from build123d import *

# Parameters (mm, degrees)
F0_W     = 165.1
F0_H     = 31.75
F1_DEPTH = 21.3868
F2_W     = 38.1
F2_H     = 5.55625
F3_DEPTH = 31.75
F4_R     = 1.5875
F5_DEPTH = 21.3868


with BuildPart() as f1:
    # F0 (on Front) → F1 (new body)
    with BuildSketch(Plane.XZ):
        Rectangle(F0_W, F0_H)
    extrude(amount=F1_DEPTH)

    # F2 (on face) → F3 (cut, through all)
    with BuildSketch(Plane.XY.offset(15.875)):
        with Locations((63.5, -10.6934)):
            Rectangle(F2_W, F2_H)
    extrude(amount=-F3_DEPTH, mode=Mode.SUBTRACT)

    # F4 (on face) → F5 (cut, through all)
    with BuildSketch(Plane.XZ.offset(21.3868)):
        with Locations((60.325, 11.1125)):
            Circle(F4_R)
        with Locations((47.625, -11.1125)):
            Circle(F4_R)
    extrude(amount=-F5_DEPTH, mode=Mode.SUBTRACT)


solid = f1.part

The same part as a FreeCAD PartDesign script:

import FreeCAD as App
import Part
import Sketcher
Q = App.Units.Quantity


def add_polygon(sketch, points):
    """Adds a closed chain of lines whose ends are joined by coincident constraints."""
    first, n = sketch.GeometryCount, len(points)
    for a, b in zip(points, points[1:] + points[:1]):
        sketch.addGeometry(Part.LineSegment(App.Vector(*a, 0), App.Vector(*b, 0)), False)
    for i in range(n):
        sketch.addConstraint(Sketcher.Constraint("Coincident", first + i, 2, first + (i + 1) % n, 1))

doc = App.newDocument("Part")
body = doc.addObject("PartDesign::Body", "Body")

# Sketch on XZ plane
sketch1 = body.newObject("Sketcher::SketchObject", "Sketch")
sketch1.AttachmentSupport = (doc.getObject("XZ_Plane"), [""])
sketch1.MapMode = "FlatFace"
add_polygon(sketch1, [(-83, 16), (-83, -16), (83, -16), (83, 16)])  # lines 0-3
sketch1.addConstraint(Sketcher.Constraint("Vertical", 0))
sketch1.addConstraint(Sketcher.Constraint("Horizontal", 1))
sketch1.addConstraint(Sketcher.Constraint("Vertical", 2))
sketch1.addConstraint(Sketcher.Constraint("Horizontal", 3))
sketch1.addConstraint(Sketcher.Constraint("Symmetric", 0, 2, 2, 2, -1, 1))
sketch1.addConstraint(Sketcher.Constraint("DistanceX", 1, 1, 1, 2, Q("6.5 in")))
sketch1.addConstraint(Sketcher.Constraint("DistanceY", 0, 2, 0, 1, Q("1.25 in")))
pad1 = body.newObject("PartDesign::Pad", "Pad")
pad1.Profile = sketch1
pad1.Length = Q("0.842 in")

# Sketch on XY plane
sketch2 = body.newObject("Sketcher::SketchObject", "Sketch001")
sketch2.AttachmentSupport = (doc.getObject("XY_Plane"), [""])
sketch2.MapMode = "FlatFace"
sketch2.AttachmentOffset = App.Placement(App.Vector(0, 0, 0.625 * 25.4), App.Rotation())
add_polygon(sketch2, [(44, -8), (44, -13), (83, -13), (83, -8)])  # lines 0-3
sketch2.addConstraint(Sketcher.Constraint("Vertical", 0))
sketch2.addConstraint(Sketcher.Constraint("Horizontal", 1))
sketch2.addConstraint(Sketcher.Constraint("Vertical", 2))
sketch2.addConstraint(Sketcher.Constraint("Horizontal", 3))
sketch2.addConstraint(Sketcher.Constraint("DistanceX", 1, 1, 1, 2, Q("1.5 in")))
sketch2.addConstraint(Sketcher.Constraint("DistanceY", 0, 2, 0, 1, Q("0.21875 in")))
sketch2.addConstraint(Sketcher.Constraint("DistanceX", -1, 1, 0, 2, Q("1.75 in")))
sketch2.addConstraint(Sketcher.Constraint("DistanceY", 0, 2, -1, 1, Q("13.471525 mm")))
pocket1 = body.newObject("PartDesign::Pocket", "Pocket")
pocket1.Profile = sketch2
pocket1.Type = "ThroughAll"

# Sketch on XZ plane
sketch3 = body.newObject("Sketcher::SketchObject", "Sketch002")
sketch3.AttachmentSupport = (doc.getObject("XZ_Plane"), [""])
sketch3.MapMode = "FlatFace"
sketch3.AttachmentOffset = App.Placement(App.Vector(0, 0, 0.842 * 25.4), App.Rotation())
sketch3.addGeometry(Part.Circle(App.Vector(60.3, 11.1, 0), App.Vector(0, 0, 1), 1.6), False)
sketch3.addGeometry(Part.Circle(App.Vector(47.6, -11.1, 0), App.Vector(0, 0, 1), 1.6), False)
sketch3.addConstraint(Sketcher.Constraint("Equal", 0, 1))
sketch3.addConstraint(Sketcher.Constraint("Diameter", 0, Q("0.125 in")))
sketch3.addConstraint(Sketcher.Constraint("DistanceX", 1, 3, 0, 3, Q("0.5 in")))
sketch3.addConstraint(Sketcher.Constraint("DistanceX", -1, 1, 0, 3, Q("2.375 in")))
sketch3.addConstraint(Sketcher.Constraint("DistanceY", -1, 1, 0, 3, Q("0.4375 in")))
sketch3.addConstraint(Sketcher.Constraint("DistanceY", 1, 3, -1, 1, Q("0.4375 in")))
pocket2 = body.newObject("PartDesign::Pocket", "Pocket001")
pocket2.Profile = sketch3
pocket2.Type = "ThroughAll"

doc.recompute()
